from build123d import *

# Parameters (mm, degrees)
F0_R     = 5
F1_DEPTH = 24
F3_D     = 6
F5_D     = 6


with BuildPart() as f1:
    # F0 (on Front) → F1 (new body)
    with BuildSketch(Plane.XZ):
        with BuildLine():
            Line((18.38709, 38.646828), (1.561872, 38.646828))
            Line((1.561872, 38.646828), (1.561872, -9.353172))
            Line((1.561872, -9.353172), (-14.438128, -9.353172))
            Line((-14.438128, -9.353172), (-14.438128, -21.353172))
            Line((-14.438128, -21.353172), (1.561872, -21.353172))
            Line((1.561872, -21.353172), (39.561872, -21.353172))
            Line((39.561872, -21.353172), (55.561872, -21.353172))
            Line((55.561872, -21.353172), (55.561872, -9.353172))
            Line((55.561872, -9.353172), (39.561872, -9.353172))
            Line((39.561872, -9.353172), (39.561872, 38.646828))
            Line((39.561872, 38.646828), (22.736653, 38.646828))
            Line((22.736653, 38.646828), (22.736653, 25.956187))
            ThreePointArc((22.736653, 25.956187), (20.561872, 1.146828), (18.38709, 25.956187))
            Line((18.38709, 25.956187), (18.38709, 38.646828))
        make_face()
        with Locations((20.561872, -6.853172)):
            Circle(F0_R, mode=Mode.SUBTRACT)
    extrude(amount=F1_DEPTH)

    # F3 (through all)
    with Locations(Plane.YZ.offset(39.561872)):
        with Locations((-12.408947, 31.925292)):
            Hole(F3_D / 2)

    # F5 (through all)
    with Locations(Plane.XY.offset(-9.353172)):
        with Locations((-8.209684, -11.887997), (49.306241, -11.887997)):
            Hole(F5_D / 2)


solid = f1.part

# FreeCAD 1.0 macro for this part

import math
import FreeCAD as App
import Part
import Sketcher
from FreeCAD import Vector

doc = App.newDocument("Part")
body = doc.addObject("PartDesign::Body", "Body")

# Sketch on XZ plane
sketch1 = body.newObject("Sketcher::SketchObject", "Sketch")
sketch1.AttachmentSupport = (doc.getObject("XZ_Plane"), [""])
sketch1.MapMode = "FlatFace"
sketch1.addGeometry([
    Part.LineSegment(Vector(18.4, 38.6, 0), Vector(1.6, 38.6, 0)),  # 0
    Part.LineSegment(Vector(1.6, 38.6, 0), Vector(1.6, -9.4, 0)),  # 1
    Part.LineSegment(Vector(1.6, -9.4, 0), Vector(-14.4, -9.4, 0)),  # 2
    Part.LineSegment(Vector(-14.4, -9.4, 0), Vector(-14.4, -21.4, 0)),  # 3
    Part.LineSegment(Vector(-14.4, -21.4, 0), Vector(55.6, -21.4, 0)),  # 4
    Part.LineSegment(Vector(55.6, -21.4, 0), Vector(55.6, -9.4, 0)),  # 5
    Part.LineSegment(Vector(55.6, -9.4, 0), Vector(39.6, -9.4, 0)),  # 6
    Part.LineSegment(Vector(39.6, -9.4, 0), Vector(39.6, 38.6, 0)),  # 7
    Part.LineSegment(Vector(39.6, 38.6, 0), Vector(22.7, 38.6, 0)),  # 8
    Part.LineSegment(Vector(22.7, 38.6, 0), Vector(22.7, 26, 0)),  # 9
    Part.ArcOfCircle(Part.Circle(Vector(20.6, 13.6, 0), Vector(0, 0, 1), 12.5), math.radians(100), math.radians(440)),  # 10
    Part.LineSegment(Vector(18.4, 26, 0), Vector(18.4, 38.6, 0)),  # 11
    Part.Circle(Vector(20.6, -6.9, 0), Vector(0, 0, 1), 5),  # 12
], False)
sketch1.addConstraint([
    Sketcher.Constraint("Coincident", 0, 2, 1, 1),
    Sketcher.Constraint("Coincident", 1, 2, 2, 1),
    Sketcher.Constraint("Coincident", 2, 2, 3, 1),
    Sketcher.Constraint("Coincident", 3, 2, 4, 1),
    Sketcher.Constraint("Coincident", 4, 2, 5, 1),
    Sketcher.Constraint("Coincident", 5, 2, 6, 1),
    Sketcher.Constraint("Coincident", 6, 2, 7, 1),
    Sketcher.Constraint("Coincident", 7, 2, 8, 1),
    Sketcher.Constraint("Coincident", 8, 2, 9, 1),
    Sketcher.Constraint("Coincident", 9, 2, 10, 2),
    Sketcher.Constraint("Coincident", 10, 1, 11, 1),
    Sketcher.Constraint("Coincident", 11, 2, 0, 1),
    Sketcher.Constraint("Horizontal", 0),
    Sketcher.Constraint("Vertical", 1),
    Sketcher.Constraint("Horizontal", 2),
    Sketcher.Constraint("Vertical", 3),
    Sketcher.Constraint("Horizontal", 4),
    Sketcher.Constraint("Vertical", 5),
    Sketcher.Constraint("Horizontal", 6),
    Sketcher.Constraint("Vertical", 7),
    Sketcher.Constraint("Horizontal", 8),
    Sketcher.Constraint("Vertical", 9),
    Sketcher.Constraint("Vertical", 11),
    Sketcher.Constraint("Horizontal", 2, 2, 5, 2),
    Sketcher.Constraint("Horizontal", 0, 2, 7, 2),
    Sketcher.Constraint("Horizontal", 9, 2, 10, 1),
    Sketcher.Constraint("Vertical", 10, 3, 12, 3),
    Sketcher.Constraint("Equal", 2, 6),
    Sketcher.Constraint("Equal", 0, 8),
    Sketcher.Constraint("Diameter", 12, 10.0),
    Sketcher.Constraint("Radius", 10, 12.5),
    Sketcher.Constraint("DistanceX", 2, 2, 2, 1, 16.0),
    Sketcher.Constraint("DistanceX", 4, 1, 4, 2, 70.0),
    Sketcher.Constraint("DistanceY", 1, 2, 1, 1, 48.0),
    Sketcher.Constraint("DistanceY", 3, 2, 3, 1, 12.0),
    Sketcher.Constraint("DistanceY", 10, 3, 0, 2, 25.0),
    Sketcher.Constraint("DistanceY", 12, 3, 10, 3, 20.5),
    Sketcher.Constraint("DistanceX", 8, 2, 8, 1, 16.825219),
    Sketcher.Constraint("DistanceX", -1, 1, 10, 3, 20.561871),
    Sketcher.Constraint("DistanceY", 12, 3, -1, 1, 6.853172),
])
pad1 = body.newObject("PartDesign::Pad", "Pad")
pad1.Profile = sketch1
pad1.Length = 24

# Sketch on YZ plane
sketch2 = body.newObject("Sketcher::SketchObject", "Sketch001")
sketch2.AttachmentSupport = (doc.getObject("YZ_Plane"), [""])
sketch2.MapMode = "FlatFace"
sketch2.AttachmentOffset = App.Placement(Vector(0, 0, 39.561872), App.Rotation())
sketch2.addGeometry(Part.Circle(Vector(-12.4, 31.9, 0), Vector(0, 0, 1), 3), False)
sketch2.addConstraint([
    Sketcher.Constraint("Diameter", 0, 6.0),
    Sketcher.Constraint("DistanceY", -1, 1, 0, 3, 31.925292),
    Sketcher.Constraint("DistanceX", 0, 3, -1, 1, 12.408947),
])
doc.recompute()
hole = body.newObject("PartDesign::Hole", "Hole")
hole.Profile = sketch2
hole.ThreadType = "None"
hole.Diameter = 6
hole.DepthType = "ThroughAll"

# Sketch on XY plane
sketch3 = body.newObject("Sketcher::SketchObject", "Sketch002")
sketch3.AttachmentSupport = (doc.getObject("XY_Plane"), [""])
sketch3.MapMode = "FlatFace"
sketch3.AttachmentOffset = App.Placement(Vector(0, 0, -9.353172), App.Rotation())
sketch3.addGeometry([
    Part.Circle(Vector(-8.2, -11.9, 0), Vector(0, 0, 1), 3),
    Part.Circle(Vector(49.3, -11.9, 0), Vector(0, 0, 1), 3),
], False)
sketch3.addConstraint([
    Sketcher.Constraint("Equal", 0, 1),
    Sketcher.Constraint("Horizontal", 0, 3, 1, 3),
    Sketcher.Constraint("Diameter", 0, 6.0),
    Sketcher.Constraint("DistanceX", -1, 1, 1, 3, 49.306241),
    Sketcher.Constraint("DistanceX", 0, 3, -1, 1, 8.209684),
    Sketcher.Constraint("DistanceY", 0, 3, -1, 1, 11.887997),
])
doc.recompute()
hole2 = body.newObject("PartDesign::Hole", "Hole001")
hole2.Profile = sketch3
hole2.ThreadType = "None"
hole2.Diameter = 6
hole2.DepthType = "ThroughAll"

doc.recompute()
